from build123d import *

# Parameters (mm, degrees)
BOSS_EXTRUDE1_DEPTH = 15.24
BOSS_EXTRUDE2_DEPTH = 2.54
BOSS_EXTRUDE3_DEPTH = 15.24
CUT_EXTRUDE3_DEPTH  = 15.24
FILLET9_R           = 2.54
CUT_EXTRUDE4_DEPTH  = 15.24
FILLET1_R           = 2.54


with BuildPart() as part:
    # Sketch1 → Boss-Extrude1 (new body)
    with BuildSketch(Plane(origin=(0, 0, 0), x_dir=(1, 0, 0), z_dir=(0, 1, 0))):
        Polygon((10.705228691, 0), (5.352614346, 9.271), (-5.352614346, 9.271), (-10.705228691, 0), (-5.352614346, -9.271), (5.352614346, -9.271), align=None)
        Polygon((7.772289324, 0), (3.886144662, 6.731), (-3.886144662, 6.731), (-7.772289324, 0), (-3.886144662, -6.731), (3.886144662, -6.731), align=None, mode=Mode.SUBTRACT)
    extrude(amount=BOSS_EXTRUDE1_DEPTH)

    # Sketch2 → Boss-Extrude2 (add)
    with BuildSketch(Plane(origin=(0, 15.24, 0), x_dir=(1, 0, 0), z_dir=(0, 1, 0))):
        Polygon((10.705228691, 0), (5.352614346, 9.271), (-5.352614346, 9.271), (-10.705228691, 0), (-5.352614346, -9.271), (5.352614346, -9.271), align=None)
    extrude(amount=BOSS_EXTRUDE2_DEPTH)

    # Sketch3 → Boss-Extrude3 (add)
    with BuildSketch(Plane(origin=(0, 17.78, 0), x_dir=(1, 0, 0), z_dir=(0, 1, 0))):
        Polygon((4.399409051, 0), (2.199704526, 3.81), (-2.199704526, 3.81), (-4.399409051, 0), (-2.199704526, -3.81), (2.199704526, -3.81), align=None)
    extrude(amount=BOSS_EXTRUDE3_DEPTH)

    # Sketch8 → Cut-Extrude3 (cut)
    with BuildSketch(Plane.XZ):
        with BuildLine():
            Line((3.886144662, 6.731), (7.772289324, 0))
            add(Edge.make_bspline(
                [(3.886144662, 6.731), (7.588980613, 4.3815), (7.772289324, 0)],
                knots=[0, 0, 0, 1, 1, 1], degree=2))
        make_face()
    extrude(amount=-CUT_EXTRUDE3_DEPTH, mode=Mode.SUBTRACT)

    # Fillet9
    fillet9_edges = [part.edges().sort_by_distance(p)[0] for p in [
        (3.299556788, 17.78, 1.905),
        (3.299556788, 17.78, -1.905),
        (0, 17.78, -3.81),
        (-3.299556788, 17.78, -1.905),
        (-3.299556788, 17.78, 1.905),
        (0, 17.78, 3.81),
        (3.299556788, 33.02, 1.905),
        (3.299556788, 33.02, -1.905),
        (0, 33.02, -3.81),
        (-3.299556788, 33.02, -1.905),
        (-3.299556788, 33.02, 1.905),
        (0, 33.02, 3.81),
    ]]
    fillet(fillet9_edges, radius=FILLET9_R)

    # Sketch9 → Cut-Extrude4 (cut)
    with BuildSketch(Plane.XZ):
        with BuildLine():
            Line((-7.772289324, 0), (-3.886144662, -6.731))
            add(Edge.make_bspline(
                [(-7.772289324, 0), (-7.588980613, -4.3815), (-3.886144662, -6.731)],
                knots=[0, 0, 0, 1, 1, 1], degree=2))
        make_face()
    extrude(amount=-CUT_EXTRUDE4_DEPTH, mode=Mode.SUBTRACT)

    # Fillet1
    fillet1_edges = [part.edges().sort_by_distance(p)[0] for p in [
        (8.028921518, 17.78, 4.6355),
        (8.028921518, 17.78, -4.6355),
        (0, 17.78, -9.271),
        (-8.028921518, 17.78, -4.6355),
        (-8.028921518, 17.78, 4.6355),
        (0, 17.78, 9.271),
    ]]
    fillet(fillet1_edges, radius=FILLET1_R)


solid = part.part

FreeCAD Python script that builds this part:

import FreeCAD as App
import Part
import Sketcher
from FreeCAD import Vector
Q = App.Units.Quantity


def edges_at(feature, points):
    """Names of the edges that pass closest to the given points."""
    edges = feature.Shape.Edges
    near = lambda p: min(range(len(edges)), key=lambda i: edges[i].distToShape(Part.Vertex(*p))[0])
    return sorted({f"Edge{near(p) + 1}" for p in points})

doc = App.newDocument("Part")
body = doc.addObject("PartDesign::Body", "Body")

# Sketch on XZ plane
sketch1 = body.newObject("Sketcher::SketchObject", "Sketch")
sketch1.AttachmentSupport = (doc.getObject("XZ_Plane"), [""])
sketch1.MapMode = "FlatFace"
sketch1.addGeometry(Part.LineSegment(Vector(10.705229, 0, 0), Vector(5.352614, -9.271, 0)), False)
sketch1.addGeometry(Part.LineSegment(Vector(5.352614, -9.271, 0), Vector(-5.352614, -9.271, 0)), False)
sketch1.addGeometry(Part.LineSegment(Vector(-5.352614, -9.271, 0), Vector(-10.705229, 0, 0)), False)
sketch1.addGeometry(Part.LineSegment(Vector(-10.705229, 0, 0), Vector(-5.352614, 9.271, 0)), False)
sketch1.addGeometry(Part.LineSegment(Vector(-5.352614, 9.271, 0), Vector(5.352614, 9.271, 0)), False)
sketch1.addGeometry(Part.LineSegment(Vector(5.352614, 9.271, 0), Vector(10.705229, 0, 0)), False)
sketch1.addGeometry(Part.LineSegment(Vector(3.886145, -6.731, 0), Vector(7.772289, 0, 0)), False)
sketch1.addGeometry(Part.LineSegment(Vector(7.772289, 0, 0), Vector(3.886145, 6.731, 0)), False)
sketch1.addGeometry(Part.LineSegment(Vector(3.886145, 6.731, 0), Vector(-3.886145, 6.731, 0)), False)
sketch1.addGeometry(Part.LineSegment(Vector(-3.886145, 6.731, 0), Vector(-7.772289, 0, 0)), False)
sketch1.addGeometry(Part.LineSegment(Vector(-7.772289, 0, 0), Vector(-3.886145, -6.731, 0)), False)
sketch1.addGeometry(Part.LineSegment(Vector(-3.886145, -6.731, 0), Vector(3.886145, -6.731, 0)), False)
sketch1.addConstraint(Sketcher.Constraint("Coincident", 0, 2, 1, 1))
sketch1.addConstraint(Sketcher.Constraint("Coincident", 1, 2, 2, 1))
sketch1.addConstraint(Sketcher.Constraint("Coincident", 2, 2, 3, 1))
sketch1.addConstraint(Sketcher.Constraint("Coincident", 3, 2, 4, 1))
sketch1.addConstraint(Sketcher.Constraint("Coincident", 4, 2, 5, 1))
sketch1.addConstraint(Sketcher.Constraint("Coincident", 5, 2, 0, 1))
sketch1.addConstraint(Sketcher.Constraint("Coincident", 6, 2, 7, 1))
sketch1.addConstraint(Sketcher.Constraint("Coincident", 7, 2, 8, 1))
sketch1.addConstraint(Sketcher.Constraint("Coincident", 8, 2, 9, 1))
sketch1.addConstraint(Sketcher.Constraint("Coincident", 9, 2, 10, 1))
sketch1.addConstraint(Sketcher.Constraint("Coincident", 10, 2, 11, 1))
sketch1.addConstraint(Sketcher.Constraint("Coincident", 11, 2, 6, 1))
sketch1.addConstraint(Sketcher.Constraint("Horizontal", 1))
sketch1.addConstraint(Sketcher.Constraint("Horizontal", 4))
sketch1.addConstraint(Sketcher.Constraint("Horizontal", 8))
sketch1.addConstraint(Sketcher.Constraint("Horizontal", 11))
sketch1.addConstraint(Sketcher.Constraint("Symmetric", 0, 2, 3, 2, -1, 1))
sketch1.addConstraint(Sketcher.Constraint("Symmetric", 2, 2, 5, 2, -1, 1))
sketch1.addConstraint(Sketcher.Constraint("Symmetric", 6, 2, 9, 2, -1, 1))
sketch1.addConstraint(Sketcher.Constraint("Symmetric", 7, 2, 10, 2, -1, 1))
sketch1.addConstraint(Sketcher.Constraint("PointOnObject", 2, 2, -1))
sketch1.addConstraint(Sketcher.Constraint("PointOnObject", 6, 2, -1))
sketch1.addConstraint(Sketcher.Constraint("Parallel", 2, 5))
sketch1.addConstraint(Sketcher.Constraint("Parallel", 3, 6))
sketch1.addConstraint(Sketcher.Constraint("Parallel", 5, 7))
sketch1.addConstraint(Sketcher.Constraint("Parallel", 6, 9))
sketch1.addConstraint(Sketcher.Constraint("Vertical", 1, 2, 3, 2))
sketch1.addConstraint(Sketcher.Constraint("Angle", 0, Q("-120 deg")))
sketch1.addConstraint(Sketcher.Constraint("DistanceY", 7, 2, 4, 2, Q("0.1 in")))
sketch1.addConstraint(Sketcher.Constraint("DistanceY", 1, 2, 3, 2, Q("0.73 in")))
sketch1.addConstraint(Sketcher.Constraint("DistanceX", 1, 2, 1, 1, 10.705229))
sketch1.addConstraint(Sketcher.Constraint("DistanceX", 8, 2, 8, 1, 7.772289))
pad1 = body.newObject("PartDesign::Pad", "Pad")
pad1.Profile = sketch1
pad1.Length = Q("0.6 in")
pad1.Reversed = True

# Sketch on XZ plane
sketch2 = body.newObject("Sketcher::SketchObject", "Sketch001")
sketch2.AttachmentSupport = (doc.getObject("XZ_Plane"), [""])
sketch2.MapMode = "FlatFace"
sketch2.AttachmentOffset = App.Placement(Vector(0, 0, -0.6 * 25.4), App.Rotation())
sketch2.addGeometry(Part.LineSegment(Vector(10.705229, 0, 0), Vector(5.352614, -9.271, 0)), False)
sketch2.addGeometry(Part.LineSegment(Vector(5.352614, -9.271, 0), Vector(-5.352614, -9.271, 0)), False)
sketch2.addGeometry(Part.LineSegment(Vector(-5.352614, -9.271, 0), Vector(-10.705229, 0, 0)), False)
sketch2.addGeometry(Part.LineSegment(Vector(-10.705229, 0, 0), Vector(-5.352614, 9.271, 0)), False)
sketch2.addGeometry(Part.LineSegment(Vector(-5.352614, 9.271, 0), Vector(5.352614, 9.271, 0)), False)
sketch2.addGeometry(Part.LineSegment(Vector(5.352614, 9.271, 0), Vector(10.705229, 0, 0)), False)
sketch2.addConstraint(Sketcher.Constraint("Coincident", 0, 2, 1, 1))
sketch2.addConstraint(Sketcher.Constraint("Coincident", 1, 2, 2, 1))
sketch2.addConstraint(Sketcher.Constraint("Coincident", 2, 2, 3, 1))
sketch2.addConstraint(Sketcher.Constraint("Coincident", 3, 2, 4, 1))
sketch2.addConstraint(Sketcher.Constraint("Coincident", 4, 2, 5, 1))
sketch2.addConstraint(Sketcher.Constraint("Coincident", 5, 2, 0, 1))
sketch2.addConstraint(Sketcher.Constraint("Horizontal", 1))
sketch2.addConstraint(Sketcher.Constraint("Horizontal", 4))
sketch2.addConstraint(Sketcher.Constraint("Symmetric", 0, 2, 3, 2, -1, 1))
sketch2.addConstraint(Sketcher.Constraint("Symmetric", 2, 2, 5, 2, -1, 1))
sketch2.addConstraint(Sketcher.Constraint("PointOnObject", 2, 2, -1))
sketch2.addConstraint(Sketcher.Constraint("Parallel", 2, 5))
sketch2.addConstraint(Sketcher.Constraint("Vertical", 1, 2, 3, 2))
sketch2.addConstraint(Sketcher.Constraint("Angle", 0, Q("-120 deg")))
sketch2.addConstraint(Sketcher.Constraint("DistanceY", 1, 2, 3, 2, Q("0.73 in")))
sketch2.addConstraint(Sketcher.Constraint("DistanceX", 1, 2, 1, 1, 10.705229))
pad2 = body.newObject("PartDesign::Pad", "Pad001")
pad2.Profile = sketch2
pad2.Length = Q("0.1 in")
pad2.Reversed = True

# Sketch on XZ plane
sketch3 = body.newObject("Sketcher::SketchObject", "Sketch002")
sketch3.AttachmentSupport = (doc.getObject("XZ_Plane"), [""])
sketch3.MapMode = "FlatFace"
sketch3.AttachmentOffset = App.Placement(Vector(0, 0, -0.7 * 25.4), App.Rotation())
sketch3.addGeometry(Part.LineSegment(Vector(4.399409, 0, 0), Vector(2.199705, -3.81, 0)), False)
sketch3.addGeometry(Part.LineSegment(Vector(2.199705, -3.81, 0), Vector(-2.199705, -3.81, 0)), False)
sketch3.addGeometry(Part.LineSegment(Vector(-2.199705, -3.81, 0), Vector(-4.399409, 0, 0)), False)
sketch3.addGeometry(Part.LineSegment(Vector(-4.399409, 0, 0), Vector(-2.199705, 3.81, 0)), False)
sketch3.addGeometry(Part.LineSegment(Vector(-2.199705, 3.81, 0), Vector(2.199705, 3.81, 0)), False)
sketch3.addGeometry(Part.LineSegment(Vector(2.199705, 3.81, 0), Vector(4.399409, 0, 0)), False)
sketch3.addConstraint(Sketcher.Constraint("Coincident", 0, 2, 1, 1))
sketch3.addConstraint(Sketcher.Constraint("Coincident", 1, 2, 2, 1))
sketch3.addConstraint(Sketcher.Constraint("Coincident", 2, 2, 3, 1))
sketch3.addConstraint(Sketcher.Constraint("Coincident", 3, 2, 4, 1))
sketch3.addConstraint(Sketcher.Constraint("Coincident", 4, 2, 5, 1))
sketch3.addConstraint(Sketcher.Constraint("Coincident", 5, 2, 0, 1))
sketch3.addConstraint(Sketcher.Constraint("Horizontal", 1))
sketch3.addConstraint(Sketcher.Constraint("Horizontal", 4))
sketch3.addConstraint(Sketcher.Constraint("Symmetric", 0, 2, 3, 2, -1, 1))
sketch3.addConstraint(Sketcher.Constraint("Symmetric", 2, 2, 5, 2, -1, 1))
sketch3.addConstraint(Sketcher.Constraint("PointOnObject", 2, 2, -1))
sketch3.addConstraint(Sketcher.Constraint("Parallel", 2, 5))
sketch3.addConstraint(Sketcher.Constraint("Vertical", 1, 2, 3, 2))
sketch3.addConstraint(Sketcher.Constraint("Angle", 0, Q("-120 deg")))
sketch3.addConstraint(Sketcher.Constraint("DistanceY", 1, 2, 3, 2, Q("0.3 in")))
sketch3.addConstraint(Sketcher.Constraint("DistanceX", 1, 2, 1, 1, 4.399409))
pad3 = body.newObject("PartDesign::Pad", "Pad002")
pad3.Profile = sketch3
pad3.Length = Q("0.6 in")
pad3.Reversed = True

# Sketch on XZ plane
sketch4 = body.newObject("Sketcher::SketchObject", "Sketch003")
sketch4.AttachmentSupport = (doc.getObject("XZ_Plane"), [""])
sketch4.MapMode = "FlatFace"
sketch4.addGeometry(Part.LineSegment(Vector(3.886145, 6.731, 0), Vector(7.772289, 0, 0)), False)
sketch4.addGeometry(Part.BSplineCurve([Vector(3.886145, 6.731, 0), Vector(7.588981, 4.3815, 0), Vector(7.772289, 0, 0)], [3, 3], [0, 1], False, 2, [1, 1, 1], False), False)
sketch4.addConstraint(Sketcher.Constraint("Block", 1))
sketch4.addConstraint(Sketcher.Constraint("Coincident", 0, 1, 1, 1))
sketch4.addConstraint(Sketcher.Constraint("Coincident", 1, 2, 0, 2))
pocket1 = body.newObject("PartDesign::Pocket", "Pocket")
pocket1.Profile = sketch4
pocket1.Length = Q("0.6 in")
doc.recompute()

fillet = body.newObject("PartDesign::Fillet", "Fillet")
fillet.Base = (pocket1, edges_at(pocket1, [
    (3.3, 17.78, 1.905),
    (3.3, 17.78, -1.905),
    (0, 17.78, -3.81),
    (-3.3, 17.78, -1.905),
    (-3.3, 17.78, 1.905),
    (0, 17.78, 3.81),
    (3.3, 33.02, 1.905),
    (3.3, 33.02, -1.905),
    (0, 33.02, -3.81),
    (-3.3, 33.02, -1.905),
    (-3.3, 33.02, 1.905),
    (0, 33.02, 3.81),
]))
fillet.Radius = Q("0.1 in")

# Sketch on XZ plane
sketch5 = body.newObject("Sketcher::SketchObject", "Sketch004")
sketch5.AttachmentSupport = (doc.getObject("XZ_Plane"), [""])
sketch5.MapMode = "FlatFace"
sketch5.addGeometry(Part.LineSegment(Vector(-3.886145, -6.731, 0), Vector(-7.772289, 0, 0)), False)
sketch5.addGeometry(Part.BSplineCurve([Vector(-7.772289, 0, 0), Vector(-7.588981, -4.3815, 0), Vector(-3.886145, -6.731, 0)], [3, 3], [0, 1], False, 2, [1, 1, 1], False), False)
sketch5.addConstraint(Sketcher.Constraint("Block", 1))
sketch5.addConstraint(Sketcher.Constraint("Coincident", 0, 1, 1, 2))
sketch5.addConstraint(Sketcher.Constraint("Coincident", 1, 1, 0, 2))
pocket2 = body.newObject("PartDesign::Pocket", "Pocket001")
pocket2.Profile = sketch5
pocket2.Length = Q("0.6 in")
doc.recompute()

fillet2 = body.newObject("PartDesign::Fillet", "Fillet001")
fillet2.Base = (pocket2, edges_at(pocket2, [
    (8.029, 17.78, 4.636),
    (8.029, 17.78, -4.636),
    (0, 17.78, -9.271),
    (-8.029, 17.78, -4.636),
    (-8.029, 17.78, 4.636),
    (0, 17.78, 9.271),
]))
fillet2.Radius = Q("0.1 in")

doc.recompute()
